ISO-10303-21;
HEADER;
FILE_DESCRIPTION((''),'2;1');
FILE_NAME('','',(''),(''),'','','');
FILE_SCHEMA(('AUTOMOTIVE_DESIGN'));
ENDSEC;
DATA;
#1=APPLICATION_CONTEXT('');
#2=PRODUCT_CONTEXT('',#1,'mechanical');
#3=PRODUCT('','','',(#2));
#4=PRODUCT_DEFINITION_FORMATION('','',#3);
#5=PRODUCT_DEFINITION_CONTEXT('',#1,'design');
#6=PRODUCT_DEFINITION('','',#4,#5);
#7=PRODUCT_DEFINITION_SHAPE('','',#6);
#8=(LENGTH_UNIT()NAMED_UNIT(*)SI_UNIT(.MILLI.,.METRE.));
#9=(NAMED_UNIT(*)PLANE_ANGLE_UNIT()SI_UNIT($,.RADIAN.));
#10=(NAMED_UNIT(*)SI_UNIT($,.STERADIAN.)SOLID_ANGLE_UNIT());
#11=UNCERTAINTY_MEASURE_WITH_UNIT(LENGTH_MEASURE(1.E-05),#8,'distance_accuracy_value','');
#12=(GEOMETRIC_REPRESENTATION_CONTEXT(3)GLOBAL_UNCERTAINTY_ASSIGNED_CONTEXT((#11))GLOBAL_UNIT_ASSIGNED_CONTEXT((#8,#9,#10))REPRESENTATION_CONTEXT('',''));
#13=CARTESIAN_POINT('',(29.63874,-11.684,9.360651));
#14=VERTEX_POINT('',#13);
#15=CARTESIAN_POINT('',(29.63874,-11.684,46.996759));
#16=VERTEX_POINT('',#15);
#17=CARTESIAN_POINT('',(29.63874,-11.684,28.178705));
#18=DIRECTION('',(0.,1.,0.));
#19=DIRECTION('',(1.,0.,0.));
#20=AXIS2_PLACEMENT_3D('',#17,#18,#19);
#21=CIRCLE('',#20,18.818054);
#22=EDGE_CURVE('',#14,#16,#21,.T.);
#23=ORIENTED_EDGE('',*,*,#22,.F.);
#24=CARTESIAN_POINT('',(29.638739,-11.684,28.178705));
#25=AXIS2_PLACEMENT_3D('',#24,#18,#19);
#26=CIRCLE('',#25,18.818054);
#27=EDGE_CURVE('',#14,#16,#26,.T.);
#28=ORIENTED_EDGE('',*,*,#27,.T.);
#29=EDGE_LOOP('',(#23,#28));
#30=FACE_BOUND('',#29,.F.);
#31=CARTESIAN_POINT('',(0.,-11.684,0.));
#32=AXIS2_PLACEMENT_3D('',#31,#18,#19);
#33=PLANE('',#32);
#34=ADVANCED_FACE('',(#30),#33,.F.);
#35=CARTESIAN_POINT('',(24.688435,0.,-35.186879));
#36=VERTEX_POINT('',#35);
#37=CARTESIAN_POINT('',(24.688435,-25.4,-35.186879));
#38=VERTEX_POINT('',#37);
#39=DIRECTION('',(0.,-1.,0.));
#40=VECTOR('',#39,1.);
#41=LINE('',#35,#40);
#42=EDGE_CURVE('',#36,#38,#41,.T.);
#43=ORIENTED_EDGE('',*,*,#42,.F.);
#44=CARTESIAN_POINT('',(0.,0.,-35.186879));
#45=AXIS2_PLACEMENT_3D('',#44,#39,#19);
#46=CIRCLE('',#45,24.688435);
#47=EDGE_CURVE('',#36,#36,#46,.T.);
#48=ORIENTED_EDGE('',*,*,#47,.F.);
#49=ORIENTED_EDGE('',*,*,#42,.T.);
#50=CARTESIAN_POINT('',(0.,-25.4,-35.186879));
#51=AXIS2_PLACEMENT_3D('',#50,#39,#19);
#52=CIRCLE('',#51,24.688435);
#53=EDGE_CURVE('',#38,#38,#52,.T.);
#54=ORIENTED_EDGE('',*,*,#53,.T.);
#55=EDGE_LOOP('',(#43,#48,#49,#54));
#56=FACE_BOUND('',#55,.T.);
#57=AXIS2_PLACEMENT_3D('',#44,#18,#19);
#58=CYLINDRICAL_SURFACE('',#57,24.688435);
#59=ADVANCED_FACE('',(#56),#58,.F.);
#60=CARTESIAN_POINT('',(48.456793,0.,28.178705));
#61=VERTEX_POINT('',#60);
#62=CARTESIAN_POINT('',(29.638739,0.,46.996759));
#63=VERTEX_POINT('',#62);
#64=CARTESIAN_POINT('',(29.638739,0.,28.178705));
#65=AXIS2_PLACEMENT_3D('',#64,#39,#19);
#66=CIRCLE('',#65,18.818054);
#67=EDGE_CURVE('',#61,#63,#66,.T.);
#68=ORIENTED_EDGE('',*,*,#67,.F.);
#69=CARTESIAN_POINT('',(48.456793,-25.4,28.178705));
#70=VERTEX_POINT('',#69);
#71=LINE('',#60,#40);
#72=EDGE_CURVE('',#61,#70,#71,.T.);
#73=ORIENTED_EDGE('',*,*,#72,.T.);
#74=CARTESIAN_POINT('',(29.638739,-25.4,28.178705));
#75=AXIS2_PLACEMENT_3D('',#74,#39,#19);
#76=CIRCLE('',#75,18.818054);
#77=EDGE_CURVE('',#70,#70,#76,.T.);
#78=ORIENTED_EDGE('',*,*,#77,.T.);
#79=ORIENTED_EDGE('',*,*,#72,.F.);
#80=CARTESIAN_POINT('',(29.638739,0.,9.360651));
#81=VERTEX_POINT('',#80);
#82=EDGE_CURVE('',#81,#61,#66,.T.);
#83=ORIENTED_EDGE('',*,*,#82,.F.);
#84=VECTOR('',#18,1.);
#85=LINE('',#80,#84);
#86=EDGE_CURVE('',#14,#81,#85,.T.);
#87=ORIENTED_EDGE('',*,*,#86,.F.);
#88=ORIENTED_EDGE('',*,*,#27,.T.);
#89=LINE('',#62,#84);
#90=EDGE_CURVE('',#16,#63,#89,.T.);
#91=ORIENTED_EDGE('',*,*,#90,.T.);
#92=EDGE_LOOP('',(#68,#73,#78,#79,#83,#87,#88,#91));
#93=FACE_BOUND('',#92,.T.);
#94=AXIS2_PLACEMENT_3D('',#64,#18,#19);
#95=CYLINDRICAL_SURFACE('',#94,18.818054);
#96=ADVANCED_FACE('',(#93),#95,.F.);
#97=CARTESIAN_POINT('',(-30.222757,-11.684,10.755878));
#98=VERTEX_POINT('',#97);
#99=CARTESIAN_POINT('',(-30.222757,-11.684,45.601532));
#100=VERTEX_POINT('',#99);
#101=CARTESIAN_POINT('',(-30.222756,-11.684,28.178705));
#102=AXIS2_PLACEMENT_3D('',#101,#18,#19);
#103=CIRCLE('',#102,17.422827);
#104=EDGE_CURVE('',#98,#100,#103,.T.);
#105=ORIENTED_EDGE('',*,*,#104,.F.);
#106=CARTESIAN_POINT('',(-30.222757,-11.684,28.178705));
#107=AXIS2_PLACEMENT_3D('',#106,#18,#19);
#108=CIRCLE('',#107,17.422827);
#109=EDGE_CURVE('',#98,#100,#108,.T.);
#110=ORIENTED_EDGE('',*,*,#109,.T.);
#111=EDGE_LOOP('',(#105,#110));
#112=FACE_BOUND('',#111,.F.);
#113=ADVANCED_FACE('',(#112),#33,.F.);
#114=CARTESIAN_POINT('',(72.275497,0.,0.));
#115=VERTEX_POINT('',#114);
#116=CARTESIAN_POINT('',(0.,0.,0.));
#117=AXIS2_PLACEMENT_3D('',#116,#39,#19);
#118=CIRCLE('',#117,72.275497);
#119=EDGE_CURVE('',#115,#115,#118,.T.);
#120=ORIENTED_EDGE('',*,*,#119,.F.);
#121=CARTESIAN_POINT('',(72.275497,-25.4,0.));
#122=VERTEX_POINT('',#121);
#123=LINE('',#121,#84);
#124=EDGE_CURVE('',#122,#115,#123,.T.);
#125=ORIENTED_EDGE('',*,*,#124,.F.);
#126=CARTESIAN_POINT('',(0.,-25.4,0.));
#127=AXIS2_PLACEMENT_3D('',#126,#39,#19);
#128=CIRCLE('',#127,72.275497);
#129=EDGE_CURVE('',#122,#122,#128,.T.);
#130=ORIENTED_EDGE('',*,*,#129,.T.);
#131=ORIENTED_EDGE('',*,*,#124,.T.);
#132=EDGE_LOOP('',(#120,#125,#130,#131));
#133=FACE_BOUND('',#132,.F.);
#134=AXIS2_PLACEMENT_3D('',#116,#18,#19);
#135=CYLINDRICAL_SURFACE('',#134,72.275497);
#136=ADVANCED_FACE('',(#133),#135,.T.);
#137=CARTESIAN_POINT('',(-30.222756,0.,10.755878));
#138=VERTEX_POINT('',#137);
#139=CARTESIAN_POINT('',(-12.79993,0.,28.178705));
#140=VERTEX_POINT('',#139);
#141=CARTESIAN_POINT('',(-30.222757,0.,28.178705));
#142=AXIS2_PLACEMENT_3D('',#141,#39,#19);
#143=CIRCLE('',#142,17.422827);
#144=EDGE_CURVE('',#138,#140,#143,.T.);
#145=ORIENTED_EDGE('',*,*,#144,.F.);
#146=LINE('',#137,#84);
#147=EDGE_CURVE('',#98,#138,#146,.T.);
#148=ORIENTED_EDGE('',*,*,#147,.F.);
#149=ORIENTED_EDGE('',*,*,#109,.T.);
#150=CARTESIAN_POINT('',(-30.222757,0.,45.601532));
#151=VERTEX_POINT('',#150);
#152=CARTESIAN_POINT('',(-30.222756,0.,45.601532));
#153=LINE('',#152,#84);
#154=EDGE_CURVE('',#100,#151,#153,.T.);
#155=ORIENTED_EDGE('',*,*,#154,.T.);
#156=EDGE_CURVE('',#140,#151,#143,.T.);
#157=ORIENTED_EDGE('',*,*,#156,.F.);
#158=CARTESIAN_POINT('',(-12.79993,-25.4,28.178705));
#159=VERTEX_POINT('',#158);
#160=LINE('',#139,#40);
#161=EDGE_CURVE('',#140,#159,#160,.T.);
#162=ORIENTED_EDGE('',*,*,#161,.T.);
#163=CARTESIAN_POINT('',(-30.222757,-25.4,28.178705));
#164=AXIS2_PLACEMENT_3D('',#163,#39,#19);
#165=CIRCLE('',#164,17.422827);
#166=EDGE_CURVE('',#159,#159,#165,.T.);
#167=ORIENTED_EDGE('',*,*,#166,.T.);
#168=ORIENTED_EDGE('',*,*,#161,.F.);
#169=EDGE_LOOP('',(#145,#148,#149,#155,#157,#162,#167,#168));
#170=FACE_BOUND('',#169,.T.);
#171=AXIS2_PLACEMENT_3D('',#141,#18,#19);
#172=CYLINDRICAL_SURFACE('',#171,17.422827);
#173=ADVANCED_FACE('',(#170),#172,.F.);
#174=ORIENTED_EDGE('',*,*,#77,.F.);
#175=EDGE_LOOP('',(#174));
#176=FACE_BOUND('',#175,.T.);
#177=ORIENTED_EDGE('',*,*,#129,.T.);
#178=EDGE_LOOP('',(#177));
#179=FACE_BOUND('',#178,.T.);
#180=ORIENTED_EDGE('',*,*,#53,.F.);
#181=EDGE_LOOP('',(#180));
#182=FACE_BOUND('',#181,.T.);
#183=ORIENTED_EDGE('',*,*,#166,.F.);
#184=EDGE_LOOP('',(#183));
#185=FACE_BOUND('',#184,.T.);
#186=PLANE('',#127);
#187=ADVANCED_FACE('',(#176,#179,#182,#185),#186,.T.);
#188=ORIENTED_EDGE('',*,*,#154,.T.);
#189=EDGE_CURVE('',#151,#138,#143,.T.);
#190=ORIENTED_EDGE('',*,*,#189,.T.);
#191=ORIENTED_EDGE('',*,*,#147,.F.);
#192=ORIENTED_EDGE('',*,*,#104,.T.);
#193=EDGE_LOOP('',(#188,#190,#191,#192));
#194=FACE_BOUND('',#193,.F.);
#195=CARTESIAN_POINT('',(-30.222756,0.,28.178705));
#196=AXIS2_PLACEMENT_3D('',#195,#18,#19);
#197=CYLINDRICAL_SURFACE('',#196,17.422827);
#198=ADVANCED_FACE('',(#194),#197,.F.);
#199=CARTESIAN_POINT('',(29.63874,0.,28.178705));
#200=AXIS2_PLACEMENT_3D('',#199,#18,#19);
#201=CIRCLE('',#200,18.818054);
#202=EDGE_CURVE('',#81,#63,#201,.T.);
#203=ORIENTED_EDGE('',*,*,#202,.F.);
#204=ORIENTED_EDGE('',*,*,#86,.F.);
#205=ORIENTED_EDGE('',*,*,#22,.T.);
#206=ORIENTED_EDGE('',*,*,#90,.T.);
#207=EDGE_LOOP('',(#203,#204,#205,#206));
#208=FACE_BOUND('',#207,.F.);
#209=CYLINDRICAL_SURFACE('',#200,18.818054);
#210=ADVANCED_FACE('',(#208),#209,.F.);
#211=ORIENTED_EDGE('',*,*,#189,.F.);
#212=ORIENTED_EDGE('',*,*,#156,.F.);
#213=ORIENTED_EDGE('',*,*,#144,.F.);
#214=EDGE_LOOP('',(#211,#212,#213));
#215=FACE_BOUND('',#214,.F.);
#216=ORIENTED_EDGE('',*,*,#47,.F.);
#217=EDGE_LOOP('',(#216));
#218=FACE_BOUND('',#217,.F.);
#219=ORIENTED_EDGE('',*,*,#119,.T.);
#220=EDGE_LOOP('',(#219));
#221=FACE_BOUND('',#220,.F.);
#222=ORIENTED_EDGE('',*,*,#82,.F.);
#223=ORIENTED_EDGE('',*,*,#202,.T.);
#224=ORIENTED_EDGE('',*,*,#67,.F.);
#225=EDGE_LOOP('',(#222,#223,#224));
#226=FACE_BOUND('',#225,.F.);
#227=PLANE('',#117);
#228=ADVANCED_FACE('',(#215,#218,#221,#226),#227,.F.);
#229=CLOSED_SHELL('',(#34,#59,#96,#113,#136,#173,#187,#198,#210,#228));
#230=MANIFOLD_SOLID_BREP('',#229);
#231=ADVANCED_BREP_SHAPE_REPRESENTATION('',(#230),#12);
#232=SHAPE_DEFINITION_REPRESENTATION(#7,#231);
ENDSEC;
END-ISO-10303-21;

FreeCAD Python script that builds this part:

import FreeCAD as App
import Part
import Sketcher
Q = App.Units.Quantity

doc = App.newDocument("Part")
body = doc.addObject("PartDesign::Body", "Body")

sketch1 = body.newObject("Sketcher::SketchObject", "Sketch")
sketch1.AttachmentSupport = (doc.getObject("XZ_Plane"), [""])
sketch1.MapMode = "FlatFace"
sketch1.addGeometry([
    Part.Circle(App.Vector(0, 0, 0), App.Vector(0, 0, 1), 72),
    Part.Circle(App.Vector(0, -35, 0), App.Vector(0, 0, 1), 25),
    Part.Circle(App.Vector(-30, 28, 0), App.Vector(0, 0, 1), 17),
    Part.Circle(App.Vector(30, 28, 0), App.Vector(0, 0, 1), 19),
], False)
sketch1.addConstraint([
    Sketcher.Constraint("Coincident", 0, 3, -1, 1),
    Sketcher.Constraint("PointOnObject", 1, 3, -2),
    Sketcher.Constraint("Horizontal", 2, 3, 3, 3),
    Sketcher.Constraint("Diameter", 1, Q("49.37687 mm")),
    Sketcher.Constraint("Diameter", 0, Q("144.550994 mm")),
    Sketcher.Constraint("Diameter", 2, Q("34.845654 mm")),
    Sketcher.Constraint("Diameter", 3, Q("37.636108 mm")),
    Sketcher.Constraint("DistanceY", 1, 3, -1, 1, Q("35.186879 mm")),
    Sketcher.Constraint("DistanceX", -1, 1, 3, 3, Q("29.638739 mm")),
    Sketcher.Constraint("DistanceX", 2, 3, -1, 1, Q("30.222757 mm")),
    Sketcher.Constraint("DistanceY", -1, 1, 2, 3, Q("28.178705 mm")),
])
pad1 = body.newObject("PartDesign::Pad", "Pad")
pad1.Profile = sketch1
pad1.Length = Q("1 in")

sketch2 = body.newObject("Sketcher::SketchObject", "Sketch001")
sketch2.AttachmentSupport = (doc.getObject("XZ_Plane"), [""])
sketch2.MapMode = "FlatFace"
sketch2.addGeometry([
    Part.Circle(App.Vector(0, 0, 0), App.Vector(0, 0, 1), 72),
    Part.Circle(App.Vector(-30, 28, 0), App.Vector(0, 0, 1), 17),
    Part.Circle(App.Vector(30, 28, 0), App.Vector(0, 0, 1), 19),
    Part.Circle(App.Vector(0, -35, 0), App.Vector(0, 0, 1), 25),
], False)
sketch2.addConstraint([
    Sketcher.Constraint("Coincident", 0, 3, -1, 1),
    Sketcher.Constraint("PointOnObject", 3, 3, -2),
    Sketcher.Constraint("Horizontal", 1, 3, 2, 3),
    Sketcher.Constraint("Diameter", 3, Q("49.37687 mm")),
    Sketcher.Constraint("Diameter", 0, Q("144.550994 mm")),
    Sketcher.Constraint("Diameter", 1, Q("34.845654 mm")),
    Sketcher.Constraint("Diameter", 2, Q("37.636108 mm")),
    Sketcher.Constraint("DistanceX", -1, 1, 2, 3, Q("29.63874 mm")),
    Sketcher.Constraint("DistanceY", 3, 3, -1, 1, Q("35.186879 mm")),
    Sketcher.Constraint("DistanceX", 1, 3, -1, 1, Q("30.222756 mm")),
    Sketcher.Constraint("DistanceY", -1, 1, 1, 3, Q("28.178705 mm")),
])
pad2 = body.newObject("PartDesign::Pad", "Pad001")
pad2.Profile = sketch2
pad2.Length = Q("0.46 in")

doc.recompute()
